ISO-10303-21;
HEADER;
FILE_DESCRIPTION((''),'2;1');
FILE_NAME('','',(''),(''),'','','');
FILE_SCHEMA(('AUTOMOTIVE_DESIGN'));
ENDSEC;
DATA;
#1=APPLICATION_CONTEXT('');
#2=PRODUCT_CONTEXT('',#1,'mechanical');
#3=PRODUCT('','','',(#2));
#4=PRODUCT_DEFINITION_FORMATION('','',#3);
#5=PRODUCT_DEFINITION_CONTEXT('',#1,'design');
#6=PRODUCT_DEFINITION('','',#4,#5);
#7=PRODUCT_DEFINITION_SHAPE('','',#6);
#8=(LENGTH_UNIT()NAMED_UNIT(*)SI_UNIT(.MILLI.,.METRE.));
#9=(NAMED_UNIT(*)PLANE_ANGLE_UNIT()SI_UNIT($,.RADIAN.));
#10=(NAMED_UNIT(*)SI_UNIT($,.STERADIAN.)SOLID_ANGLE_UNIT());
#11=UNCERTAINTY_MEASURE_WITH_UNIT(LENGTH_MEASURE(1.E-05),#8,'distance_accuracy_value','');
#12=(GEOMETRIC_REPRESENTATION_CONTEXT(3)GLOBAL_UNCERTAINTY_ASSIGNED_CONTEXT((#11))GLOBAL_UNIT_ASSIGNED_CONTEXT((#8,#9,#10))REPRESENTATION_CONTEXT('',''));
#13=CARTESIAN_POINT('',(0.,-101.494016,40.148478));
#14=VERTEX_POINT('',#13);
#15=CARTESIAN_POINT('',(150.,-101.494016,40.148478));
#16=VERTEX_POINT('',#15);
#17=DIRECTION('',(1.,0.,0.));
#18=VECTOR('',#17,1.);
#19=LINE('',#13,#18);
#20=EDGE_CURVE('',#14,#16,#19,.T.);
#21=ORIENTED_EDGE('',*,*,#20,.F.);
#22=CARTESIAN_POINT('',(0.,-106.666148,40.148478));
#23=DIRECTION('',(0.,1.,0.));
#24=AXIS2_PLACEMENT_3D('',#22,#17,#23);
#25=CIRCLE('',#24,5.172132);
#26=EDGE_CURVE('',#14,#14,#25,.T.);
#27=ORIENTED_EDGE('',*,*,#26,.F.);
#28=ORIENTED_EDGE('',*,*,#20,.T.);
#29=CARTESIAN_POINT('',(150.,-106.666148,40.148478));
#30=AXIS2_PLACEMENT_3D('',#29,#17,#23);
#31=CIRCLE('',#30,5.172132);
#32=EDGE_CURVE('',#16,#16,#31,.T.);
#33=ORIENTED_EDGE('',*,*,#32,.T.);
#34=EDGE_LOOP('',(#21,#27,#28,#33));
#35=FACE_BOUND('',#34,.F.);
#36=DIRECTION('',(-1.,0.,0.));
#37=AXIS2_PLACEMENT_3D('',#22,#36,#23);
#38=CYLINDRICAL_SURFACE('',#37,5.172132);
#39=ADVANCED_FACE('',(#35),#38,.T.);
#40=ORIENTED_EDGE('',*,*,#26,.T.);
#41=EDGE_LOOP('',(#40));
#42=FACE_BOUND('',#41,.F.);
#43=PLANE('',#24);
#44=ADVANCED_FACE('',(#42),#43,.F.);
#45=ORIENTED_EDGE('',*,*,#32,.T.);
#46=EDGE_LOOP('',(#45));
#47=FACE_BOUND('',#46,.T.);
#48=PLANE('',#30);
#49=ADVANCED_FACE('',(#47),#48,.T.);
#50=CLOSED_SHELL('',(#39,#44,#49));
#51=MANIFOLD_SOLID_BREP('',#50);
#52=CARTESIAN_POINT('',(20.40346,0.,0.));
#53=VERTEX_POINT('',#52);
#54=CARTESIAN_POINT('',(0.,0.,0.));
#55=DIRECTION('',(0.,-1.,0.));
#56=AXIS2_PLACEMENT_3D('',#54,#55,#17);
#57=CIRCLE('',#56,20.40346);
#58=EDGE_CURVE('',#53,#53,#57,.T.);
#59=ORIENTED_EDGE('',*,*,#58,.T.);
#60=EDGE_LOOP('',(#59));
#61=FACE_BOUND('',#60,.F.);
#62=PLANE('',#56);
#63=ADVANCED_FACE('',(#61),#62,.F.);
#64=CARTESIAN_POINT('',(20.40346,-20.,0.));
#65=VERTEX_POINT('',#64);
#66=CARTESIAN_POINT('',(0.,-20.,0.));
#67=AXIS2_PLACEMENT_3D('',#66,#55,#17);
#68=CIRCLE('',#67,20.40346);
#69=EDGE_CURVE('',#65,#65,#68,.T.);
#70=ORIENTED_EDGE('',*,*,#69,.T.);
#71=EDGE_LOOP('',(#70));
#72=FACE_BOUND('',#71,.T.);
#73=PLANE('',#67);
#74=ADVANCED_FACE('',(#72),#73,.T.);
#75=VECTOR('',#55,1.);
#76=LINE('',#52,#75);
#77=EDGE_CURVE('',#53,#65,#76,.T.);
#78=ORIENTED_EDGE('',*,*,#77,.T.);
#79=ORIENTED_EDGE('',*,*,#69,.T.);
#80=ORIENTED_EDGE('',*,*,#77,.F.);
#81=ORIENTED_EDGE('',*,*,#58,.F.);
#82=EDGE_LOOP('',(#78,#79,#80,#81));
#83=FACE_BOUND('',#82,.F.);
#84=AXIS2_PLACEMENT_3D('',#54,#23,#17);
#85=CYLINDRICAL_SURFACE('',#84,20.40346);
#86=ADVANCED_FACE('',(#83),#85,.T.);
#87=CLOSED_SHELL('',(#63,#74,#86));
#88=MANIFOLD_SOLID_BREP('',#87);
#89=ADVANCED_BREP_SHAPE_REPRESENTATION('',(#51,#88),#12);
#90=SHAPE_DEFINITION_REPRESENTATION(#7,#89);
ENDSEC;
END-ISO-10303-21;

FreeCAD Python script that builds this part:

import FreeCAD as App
import Part
import Sketcher

V = App.Vector

doc = App.newDocument("Part")
body = doc.addObject("PartDesign::Body", "Body")

# Sketch on XZ plane
sketch1 = doc.addObject("Sketcher::SketchObject", "Sketch")
body.addObject(sketch1)
sketch1.AttachmentSupport = (doc.XZ_Plane, [""])
sketch1.MapMode = "FlatFace"
sketch1.addGeometry(Part.Circle(V(0, 0, 0), V(0, 0, 1), 20), False)
sketch1.addConstraint([
    Sketcher.Constraint("Coincident", 0, 3, -1, 1),
    Sketcher.Constraint("Diameter", 0, 40.80692),
])
pad1 = doc.addObject("PartDesign::Pad", "Pad")
body.addObject(pad1)
pad1.Profile = sketch1
pad1.Length = 20
body2 = doc.addObject("PartDesign::Body", "Body001")

# Sketch on YZ plane
sketch2 = doc.addObject("Sketcher::SketchObject", "Sketch001")
body2.addObject(sketch2)
sketch2.AttachmentSupport = (doc.getObject("YZ_Plane001"), [""])
sketch2.MapMode = "FlatFace"
sketch2.addGeometry(Part.Circle(V(-107, 40, 0), V(0, 0, 1), 5), False)
sketch2.addConstraint([
    Sketcher.Constraint("Diameter", 0, 10.344264),
    Sketcher.Constraint("DistanceX", 0, 3, -1, 1, 106.666148),
    Sketcher.Constraint("DistanceY", -1, 1, 0, 3, 40.148478),
])
pad2 = doc.addObject("PartDesign::Pad", "Pad001")
body2.addObject(pad2)
pad2.Profile = sketch2
pad2.Length = 150

doc.recompute()
